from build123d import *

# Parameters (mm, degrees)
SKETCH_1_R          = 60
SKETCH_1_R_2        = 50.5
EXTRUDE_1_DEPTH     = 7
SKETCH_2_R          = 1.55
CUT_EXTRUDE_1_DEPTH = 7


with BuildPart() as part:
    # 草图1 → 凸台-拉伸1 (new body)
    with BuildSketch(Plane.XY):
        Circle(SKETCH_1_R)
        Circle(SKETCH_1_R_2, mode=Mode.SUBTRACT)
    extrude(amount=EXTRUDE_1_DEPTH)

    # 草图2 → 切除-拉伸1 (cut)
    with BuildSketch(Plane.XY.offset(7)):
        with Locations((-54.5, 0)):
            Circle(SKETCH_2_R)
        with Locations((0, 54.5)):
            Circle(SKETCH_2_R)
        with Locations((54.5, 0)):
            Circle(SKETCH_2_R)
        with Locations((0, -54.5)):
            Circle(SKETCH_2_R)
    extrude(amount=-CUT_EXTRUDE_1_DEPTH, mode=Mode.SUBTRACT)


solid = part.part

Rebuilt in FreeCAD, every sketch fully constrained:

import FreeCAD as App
import Part
import Sketcher

doc = App.newDocument("Part")
body = doc.addObject("PartDesign::Body", "Body")

# Sketch on XY plane
sketch1 = body.newObject("Sketcher::SketchObject", "Sketch")
sketch1.AttachmentSupport = (doc.getObject("XY_Plane"), [""])
sketch1.MapMode = "FlatFace"
sketch1.addGeometry(Part.Circle(App.Vector(0, 0, 0), App.Vector(0, 0, 1), 60), False)
sketch1.addGeometry(Part.Circle(App.Vector(0, 0, 0), App.Vector(0, 0, 1), 50.5), False)
sketch1.addConstraint(Sketcher.Constraint("Coincident", 0, 3, -1, 1))
sketch1.addConstraint(Sketcher.Constraint("Coincident", 1, 3, -1, 1))
sketch1.addConstraint(Sketcher.Constraint("Diameter", 0, 120.0))
sketch1.addConstraint(Sketcher.Constraint("Diameter", 1, 101.0))
pad1 = body.newObject("PartDesign::Pad", "Pad")
pad1.Profile = sketch1
pad1.Length = 7

# Sketch on XY plane
sketch2 = body.newObject("Sketcher::SketchObject", "Sketch001")
sketch2.AttachmentSupport = (doc.getObject("XY_Plane"), [""])
sketch2.MapMode = "FlatFace"
sketch2.AttachmentOffset = App.Placement(App.Vector(0, 0, 7), App.Rotation())
sketch2.addGeometry(Part.Circle(App.Vector(-54.5, 0, 0), App.Vector(0, 0, 1), 1.55), False)
sketch2.addGeometry(Part.Circle(App.Vector(0, 54.5, 0), App.Vector(0, 0, 1), 1.55), False)
sketch2.addGeometry(Part.Circle(App.Vector(54.5, 0, 0), App.Vector(0, 0, 1), 1.55), False)
sketch2.addGeometry(Part.Circle(App.Vector(0, -54.5, 0), App.Vector(0, 0, 1), 1.55), False)
sketch2.addConstraint(Sketcher.Constraint("Equal", 0, 1))
sketch2.addConstraint(Sketcher.Constraint("Equal", 1, 2))
sketch2.addConstraint(Sketcher.Constraint("Equal", 2, 3))
sketch2.addConstraint(Sketcher.Constraint("Symmetric", 0, 3, 2, 3, -1, 1))
sketch2.addConstraint(Sketcher.Constraint("Symmetric", 1, 3, 3, 3, -1, 1))
sketch2.addConstraint(Sketcher.Constraint("PointOnObject", 0, 3, -1))
sketch2.addConstraint(Sketcher.Constraint("PointOnObject", 1, 3, -2))
sketch2.addConstraint(Sketcher.Constraint("Diameter", 0, 3.1))
sketch2.addConstraint(Sketcher.Constraint("DistanceX", 0, 3, 2, 3, 109.0))
sketch2.addConstraint(Sketcher.Constraint("DistanceY", 3, 3, 1, 3, 109.0))
pocket1 = body.newObject("PartDesign::Pocket", "Pocket")
pocket1.Profile = sketch2
pocket1.Length = 7

doc.recompute()
